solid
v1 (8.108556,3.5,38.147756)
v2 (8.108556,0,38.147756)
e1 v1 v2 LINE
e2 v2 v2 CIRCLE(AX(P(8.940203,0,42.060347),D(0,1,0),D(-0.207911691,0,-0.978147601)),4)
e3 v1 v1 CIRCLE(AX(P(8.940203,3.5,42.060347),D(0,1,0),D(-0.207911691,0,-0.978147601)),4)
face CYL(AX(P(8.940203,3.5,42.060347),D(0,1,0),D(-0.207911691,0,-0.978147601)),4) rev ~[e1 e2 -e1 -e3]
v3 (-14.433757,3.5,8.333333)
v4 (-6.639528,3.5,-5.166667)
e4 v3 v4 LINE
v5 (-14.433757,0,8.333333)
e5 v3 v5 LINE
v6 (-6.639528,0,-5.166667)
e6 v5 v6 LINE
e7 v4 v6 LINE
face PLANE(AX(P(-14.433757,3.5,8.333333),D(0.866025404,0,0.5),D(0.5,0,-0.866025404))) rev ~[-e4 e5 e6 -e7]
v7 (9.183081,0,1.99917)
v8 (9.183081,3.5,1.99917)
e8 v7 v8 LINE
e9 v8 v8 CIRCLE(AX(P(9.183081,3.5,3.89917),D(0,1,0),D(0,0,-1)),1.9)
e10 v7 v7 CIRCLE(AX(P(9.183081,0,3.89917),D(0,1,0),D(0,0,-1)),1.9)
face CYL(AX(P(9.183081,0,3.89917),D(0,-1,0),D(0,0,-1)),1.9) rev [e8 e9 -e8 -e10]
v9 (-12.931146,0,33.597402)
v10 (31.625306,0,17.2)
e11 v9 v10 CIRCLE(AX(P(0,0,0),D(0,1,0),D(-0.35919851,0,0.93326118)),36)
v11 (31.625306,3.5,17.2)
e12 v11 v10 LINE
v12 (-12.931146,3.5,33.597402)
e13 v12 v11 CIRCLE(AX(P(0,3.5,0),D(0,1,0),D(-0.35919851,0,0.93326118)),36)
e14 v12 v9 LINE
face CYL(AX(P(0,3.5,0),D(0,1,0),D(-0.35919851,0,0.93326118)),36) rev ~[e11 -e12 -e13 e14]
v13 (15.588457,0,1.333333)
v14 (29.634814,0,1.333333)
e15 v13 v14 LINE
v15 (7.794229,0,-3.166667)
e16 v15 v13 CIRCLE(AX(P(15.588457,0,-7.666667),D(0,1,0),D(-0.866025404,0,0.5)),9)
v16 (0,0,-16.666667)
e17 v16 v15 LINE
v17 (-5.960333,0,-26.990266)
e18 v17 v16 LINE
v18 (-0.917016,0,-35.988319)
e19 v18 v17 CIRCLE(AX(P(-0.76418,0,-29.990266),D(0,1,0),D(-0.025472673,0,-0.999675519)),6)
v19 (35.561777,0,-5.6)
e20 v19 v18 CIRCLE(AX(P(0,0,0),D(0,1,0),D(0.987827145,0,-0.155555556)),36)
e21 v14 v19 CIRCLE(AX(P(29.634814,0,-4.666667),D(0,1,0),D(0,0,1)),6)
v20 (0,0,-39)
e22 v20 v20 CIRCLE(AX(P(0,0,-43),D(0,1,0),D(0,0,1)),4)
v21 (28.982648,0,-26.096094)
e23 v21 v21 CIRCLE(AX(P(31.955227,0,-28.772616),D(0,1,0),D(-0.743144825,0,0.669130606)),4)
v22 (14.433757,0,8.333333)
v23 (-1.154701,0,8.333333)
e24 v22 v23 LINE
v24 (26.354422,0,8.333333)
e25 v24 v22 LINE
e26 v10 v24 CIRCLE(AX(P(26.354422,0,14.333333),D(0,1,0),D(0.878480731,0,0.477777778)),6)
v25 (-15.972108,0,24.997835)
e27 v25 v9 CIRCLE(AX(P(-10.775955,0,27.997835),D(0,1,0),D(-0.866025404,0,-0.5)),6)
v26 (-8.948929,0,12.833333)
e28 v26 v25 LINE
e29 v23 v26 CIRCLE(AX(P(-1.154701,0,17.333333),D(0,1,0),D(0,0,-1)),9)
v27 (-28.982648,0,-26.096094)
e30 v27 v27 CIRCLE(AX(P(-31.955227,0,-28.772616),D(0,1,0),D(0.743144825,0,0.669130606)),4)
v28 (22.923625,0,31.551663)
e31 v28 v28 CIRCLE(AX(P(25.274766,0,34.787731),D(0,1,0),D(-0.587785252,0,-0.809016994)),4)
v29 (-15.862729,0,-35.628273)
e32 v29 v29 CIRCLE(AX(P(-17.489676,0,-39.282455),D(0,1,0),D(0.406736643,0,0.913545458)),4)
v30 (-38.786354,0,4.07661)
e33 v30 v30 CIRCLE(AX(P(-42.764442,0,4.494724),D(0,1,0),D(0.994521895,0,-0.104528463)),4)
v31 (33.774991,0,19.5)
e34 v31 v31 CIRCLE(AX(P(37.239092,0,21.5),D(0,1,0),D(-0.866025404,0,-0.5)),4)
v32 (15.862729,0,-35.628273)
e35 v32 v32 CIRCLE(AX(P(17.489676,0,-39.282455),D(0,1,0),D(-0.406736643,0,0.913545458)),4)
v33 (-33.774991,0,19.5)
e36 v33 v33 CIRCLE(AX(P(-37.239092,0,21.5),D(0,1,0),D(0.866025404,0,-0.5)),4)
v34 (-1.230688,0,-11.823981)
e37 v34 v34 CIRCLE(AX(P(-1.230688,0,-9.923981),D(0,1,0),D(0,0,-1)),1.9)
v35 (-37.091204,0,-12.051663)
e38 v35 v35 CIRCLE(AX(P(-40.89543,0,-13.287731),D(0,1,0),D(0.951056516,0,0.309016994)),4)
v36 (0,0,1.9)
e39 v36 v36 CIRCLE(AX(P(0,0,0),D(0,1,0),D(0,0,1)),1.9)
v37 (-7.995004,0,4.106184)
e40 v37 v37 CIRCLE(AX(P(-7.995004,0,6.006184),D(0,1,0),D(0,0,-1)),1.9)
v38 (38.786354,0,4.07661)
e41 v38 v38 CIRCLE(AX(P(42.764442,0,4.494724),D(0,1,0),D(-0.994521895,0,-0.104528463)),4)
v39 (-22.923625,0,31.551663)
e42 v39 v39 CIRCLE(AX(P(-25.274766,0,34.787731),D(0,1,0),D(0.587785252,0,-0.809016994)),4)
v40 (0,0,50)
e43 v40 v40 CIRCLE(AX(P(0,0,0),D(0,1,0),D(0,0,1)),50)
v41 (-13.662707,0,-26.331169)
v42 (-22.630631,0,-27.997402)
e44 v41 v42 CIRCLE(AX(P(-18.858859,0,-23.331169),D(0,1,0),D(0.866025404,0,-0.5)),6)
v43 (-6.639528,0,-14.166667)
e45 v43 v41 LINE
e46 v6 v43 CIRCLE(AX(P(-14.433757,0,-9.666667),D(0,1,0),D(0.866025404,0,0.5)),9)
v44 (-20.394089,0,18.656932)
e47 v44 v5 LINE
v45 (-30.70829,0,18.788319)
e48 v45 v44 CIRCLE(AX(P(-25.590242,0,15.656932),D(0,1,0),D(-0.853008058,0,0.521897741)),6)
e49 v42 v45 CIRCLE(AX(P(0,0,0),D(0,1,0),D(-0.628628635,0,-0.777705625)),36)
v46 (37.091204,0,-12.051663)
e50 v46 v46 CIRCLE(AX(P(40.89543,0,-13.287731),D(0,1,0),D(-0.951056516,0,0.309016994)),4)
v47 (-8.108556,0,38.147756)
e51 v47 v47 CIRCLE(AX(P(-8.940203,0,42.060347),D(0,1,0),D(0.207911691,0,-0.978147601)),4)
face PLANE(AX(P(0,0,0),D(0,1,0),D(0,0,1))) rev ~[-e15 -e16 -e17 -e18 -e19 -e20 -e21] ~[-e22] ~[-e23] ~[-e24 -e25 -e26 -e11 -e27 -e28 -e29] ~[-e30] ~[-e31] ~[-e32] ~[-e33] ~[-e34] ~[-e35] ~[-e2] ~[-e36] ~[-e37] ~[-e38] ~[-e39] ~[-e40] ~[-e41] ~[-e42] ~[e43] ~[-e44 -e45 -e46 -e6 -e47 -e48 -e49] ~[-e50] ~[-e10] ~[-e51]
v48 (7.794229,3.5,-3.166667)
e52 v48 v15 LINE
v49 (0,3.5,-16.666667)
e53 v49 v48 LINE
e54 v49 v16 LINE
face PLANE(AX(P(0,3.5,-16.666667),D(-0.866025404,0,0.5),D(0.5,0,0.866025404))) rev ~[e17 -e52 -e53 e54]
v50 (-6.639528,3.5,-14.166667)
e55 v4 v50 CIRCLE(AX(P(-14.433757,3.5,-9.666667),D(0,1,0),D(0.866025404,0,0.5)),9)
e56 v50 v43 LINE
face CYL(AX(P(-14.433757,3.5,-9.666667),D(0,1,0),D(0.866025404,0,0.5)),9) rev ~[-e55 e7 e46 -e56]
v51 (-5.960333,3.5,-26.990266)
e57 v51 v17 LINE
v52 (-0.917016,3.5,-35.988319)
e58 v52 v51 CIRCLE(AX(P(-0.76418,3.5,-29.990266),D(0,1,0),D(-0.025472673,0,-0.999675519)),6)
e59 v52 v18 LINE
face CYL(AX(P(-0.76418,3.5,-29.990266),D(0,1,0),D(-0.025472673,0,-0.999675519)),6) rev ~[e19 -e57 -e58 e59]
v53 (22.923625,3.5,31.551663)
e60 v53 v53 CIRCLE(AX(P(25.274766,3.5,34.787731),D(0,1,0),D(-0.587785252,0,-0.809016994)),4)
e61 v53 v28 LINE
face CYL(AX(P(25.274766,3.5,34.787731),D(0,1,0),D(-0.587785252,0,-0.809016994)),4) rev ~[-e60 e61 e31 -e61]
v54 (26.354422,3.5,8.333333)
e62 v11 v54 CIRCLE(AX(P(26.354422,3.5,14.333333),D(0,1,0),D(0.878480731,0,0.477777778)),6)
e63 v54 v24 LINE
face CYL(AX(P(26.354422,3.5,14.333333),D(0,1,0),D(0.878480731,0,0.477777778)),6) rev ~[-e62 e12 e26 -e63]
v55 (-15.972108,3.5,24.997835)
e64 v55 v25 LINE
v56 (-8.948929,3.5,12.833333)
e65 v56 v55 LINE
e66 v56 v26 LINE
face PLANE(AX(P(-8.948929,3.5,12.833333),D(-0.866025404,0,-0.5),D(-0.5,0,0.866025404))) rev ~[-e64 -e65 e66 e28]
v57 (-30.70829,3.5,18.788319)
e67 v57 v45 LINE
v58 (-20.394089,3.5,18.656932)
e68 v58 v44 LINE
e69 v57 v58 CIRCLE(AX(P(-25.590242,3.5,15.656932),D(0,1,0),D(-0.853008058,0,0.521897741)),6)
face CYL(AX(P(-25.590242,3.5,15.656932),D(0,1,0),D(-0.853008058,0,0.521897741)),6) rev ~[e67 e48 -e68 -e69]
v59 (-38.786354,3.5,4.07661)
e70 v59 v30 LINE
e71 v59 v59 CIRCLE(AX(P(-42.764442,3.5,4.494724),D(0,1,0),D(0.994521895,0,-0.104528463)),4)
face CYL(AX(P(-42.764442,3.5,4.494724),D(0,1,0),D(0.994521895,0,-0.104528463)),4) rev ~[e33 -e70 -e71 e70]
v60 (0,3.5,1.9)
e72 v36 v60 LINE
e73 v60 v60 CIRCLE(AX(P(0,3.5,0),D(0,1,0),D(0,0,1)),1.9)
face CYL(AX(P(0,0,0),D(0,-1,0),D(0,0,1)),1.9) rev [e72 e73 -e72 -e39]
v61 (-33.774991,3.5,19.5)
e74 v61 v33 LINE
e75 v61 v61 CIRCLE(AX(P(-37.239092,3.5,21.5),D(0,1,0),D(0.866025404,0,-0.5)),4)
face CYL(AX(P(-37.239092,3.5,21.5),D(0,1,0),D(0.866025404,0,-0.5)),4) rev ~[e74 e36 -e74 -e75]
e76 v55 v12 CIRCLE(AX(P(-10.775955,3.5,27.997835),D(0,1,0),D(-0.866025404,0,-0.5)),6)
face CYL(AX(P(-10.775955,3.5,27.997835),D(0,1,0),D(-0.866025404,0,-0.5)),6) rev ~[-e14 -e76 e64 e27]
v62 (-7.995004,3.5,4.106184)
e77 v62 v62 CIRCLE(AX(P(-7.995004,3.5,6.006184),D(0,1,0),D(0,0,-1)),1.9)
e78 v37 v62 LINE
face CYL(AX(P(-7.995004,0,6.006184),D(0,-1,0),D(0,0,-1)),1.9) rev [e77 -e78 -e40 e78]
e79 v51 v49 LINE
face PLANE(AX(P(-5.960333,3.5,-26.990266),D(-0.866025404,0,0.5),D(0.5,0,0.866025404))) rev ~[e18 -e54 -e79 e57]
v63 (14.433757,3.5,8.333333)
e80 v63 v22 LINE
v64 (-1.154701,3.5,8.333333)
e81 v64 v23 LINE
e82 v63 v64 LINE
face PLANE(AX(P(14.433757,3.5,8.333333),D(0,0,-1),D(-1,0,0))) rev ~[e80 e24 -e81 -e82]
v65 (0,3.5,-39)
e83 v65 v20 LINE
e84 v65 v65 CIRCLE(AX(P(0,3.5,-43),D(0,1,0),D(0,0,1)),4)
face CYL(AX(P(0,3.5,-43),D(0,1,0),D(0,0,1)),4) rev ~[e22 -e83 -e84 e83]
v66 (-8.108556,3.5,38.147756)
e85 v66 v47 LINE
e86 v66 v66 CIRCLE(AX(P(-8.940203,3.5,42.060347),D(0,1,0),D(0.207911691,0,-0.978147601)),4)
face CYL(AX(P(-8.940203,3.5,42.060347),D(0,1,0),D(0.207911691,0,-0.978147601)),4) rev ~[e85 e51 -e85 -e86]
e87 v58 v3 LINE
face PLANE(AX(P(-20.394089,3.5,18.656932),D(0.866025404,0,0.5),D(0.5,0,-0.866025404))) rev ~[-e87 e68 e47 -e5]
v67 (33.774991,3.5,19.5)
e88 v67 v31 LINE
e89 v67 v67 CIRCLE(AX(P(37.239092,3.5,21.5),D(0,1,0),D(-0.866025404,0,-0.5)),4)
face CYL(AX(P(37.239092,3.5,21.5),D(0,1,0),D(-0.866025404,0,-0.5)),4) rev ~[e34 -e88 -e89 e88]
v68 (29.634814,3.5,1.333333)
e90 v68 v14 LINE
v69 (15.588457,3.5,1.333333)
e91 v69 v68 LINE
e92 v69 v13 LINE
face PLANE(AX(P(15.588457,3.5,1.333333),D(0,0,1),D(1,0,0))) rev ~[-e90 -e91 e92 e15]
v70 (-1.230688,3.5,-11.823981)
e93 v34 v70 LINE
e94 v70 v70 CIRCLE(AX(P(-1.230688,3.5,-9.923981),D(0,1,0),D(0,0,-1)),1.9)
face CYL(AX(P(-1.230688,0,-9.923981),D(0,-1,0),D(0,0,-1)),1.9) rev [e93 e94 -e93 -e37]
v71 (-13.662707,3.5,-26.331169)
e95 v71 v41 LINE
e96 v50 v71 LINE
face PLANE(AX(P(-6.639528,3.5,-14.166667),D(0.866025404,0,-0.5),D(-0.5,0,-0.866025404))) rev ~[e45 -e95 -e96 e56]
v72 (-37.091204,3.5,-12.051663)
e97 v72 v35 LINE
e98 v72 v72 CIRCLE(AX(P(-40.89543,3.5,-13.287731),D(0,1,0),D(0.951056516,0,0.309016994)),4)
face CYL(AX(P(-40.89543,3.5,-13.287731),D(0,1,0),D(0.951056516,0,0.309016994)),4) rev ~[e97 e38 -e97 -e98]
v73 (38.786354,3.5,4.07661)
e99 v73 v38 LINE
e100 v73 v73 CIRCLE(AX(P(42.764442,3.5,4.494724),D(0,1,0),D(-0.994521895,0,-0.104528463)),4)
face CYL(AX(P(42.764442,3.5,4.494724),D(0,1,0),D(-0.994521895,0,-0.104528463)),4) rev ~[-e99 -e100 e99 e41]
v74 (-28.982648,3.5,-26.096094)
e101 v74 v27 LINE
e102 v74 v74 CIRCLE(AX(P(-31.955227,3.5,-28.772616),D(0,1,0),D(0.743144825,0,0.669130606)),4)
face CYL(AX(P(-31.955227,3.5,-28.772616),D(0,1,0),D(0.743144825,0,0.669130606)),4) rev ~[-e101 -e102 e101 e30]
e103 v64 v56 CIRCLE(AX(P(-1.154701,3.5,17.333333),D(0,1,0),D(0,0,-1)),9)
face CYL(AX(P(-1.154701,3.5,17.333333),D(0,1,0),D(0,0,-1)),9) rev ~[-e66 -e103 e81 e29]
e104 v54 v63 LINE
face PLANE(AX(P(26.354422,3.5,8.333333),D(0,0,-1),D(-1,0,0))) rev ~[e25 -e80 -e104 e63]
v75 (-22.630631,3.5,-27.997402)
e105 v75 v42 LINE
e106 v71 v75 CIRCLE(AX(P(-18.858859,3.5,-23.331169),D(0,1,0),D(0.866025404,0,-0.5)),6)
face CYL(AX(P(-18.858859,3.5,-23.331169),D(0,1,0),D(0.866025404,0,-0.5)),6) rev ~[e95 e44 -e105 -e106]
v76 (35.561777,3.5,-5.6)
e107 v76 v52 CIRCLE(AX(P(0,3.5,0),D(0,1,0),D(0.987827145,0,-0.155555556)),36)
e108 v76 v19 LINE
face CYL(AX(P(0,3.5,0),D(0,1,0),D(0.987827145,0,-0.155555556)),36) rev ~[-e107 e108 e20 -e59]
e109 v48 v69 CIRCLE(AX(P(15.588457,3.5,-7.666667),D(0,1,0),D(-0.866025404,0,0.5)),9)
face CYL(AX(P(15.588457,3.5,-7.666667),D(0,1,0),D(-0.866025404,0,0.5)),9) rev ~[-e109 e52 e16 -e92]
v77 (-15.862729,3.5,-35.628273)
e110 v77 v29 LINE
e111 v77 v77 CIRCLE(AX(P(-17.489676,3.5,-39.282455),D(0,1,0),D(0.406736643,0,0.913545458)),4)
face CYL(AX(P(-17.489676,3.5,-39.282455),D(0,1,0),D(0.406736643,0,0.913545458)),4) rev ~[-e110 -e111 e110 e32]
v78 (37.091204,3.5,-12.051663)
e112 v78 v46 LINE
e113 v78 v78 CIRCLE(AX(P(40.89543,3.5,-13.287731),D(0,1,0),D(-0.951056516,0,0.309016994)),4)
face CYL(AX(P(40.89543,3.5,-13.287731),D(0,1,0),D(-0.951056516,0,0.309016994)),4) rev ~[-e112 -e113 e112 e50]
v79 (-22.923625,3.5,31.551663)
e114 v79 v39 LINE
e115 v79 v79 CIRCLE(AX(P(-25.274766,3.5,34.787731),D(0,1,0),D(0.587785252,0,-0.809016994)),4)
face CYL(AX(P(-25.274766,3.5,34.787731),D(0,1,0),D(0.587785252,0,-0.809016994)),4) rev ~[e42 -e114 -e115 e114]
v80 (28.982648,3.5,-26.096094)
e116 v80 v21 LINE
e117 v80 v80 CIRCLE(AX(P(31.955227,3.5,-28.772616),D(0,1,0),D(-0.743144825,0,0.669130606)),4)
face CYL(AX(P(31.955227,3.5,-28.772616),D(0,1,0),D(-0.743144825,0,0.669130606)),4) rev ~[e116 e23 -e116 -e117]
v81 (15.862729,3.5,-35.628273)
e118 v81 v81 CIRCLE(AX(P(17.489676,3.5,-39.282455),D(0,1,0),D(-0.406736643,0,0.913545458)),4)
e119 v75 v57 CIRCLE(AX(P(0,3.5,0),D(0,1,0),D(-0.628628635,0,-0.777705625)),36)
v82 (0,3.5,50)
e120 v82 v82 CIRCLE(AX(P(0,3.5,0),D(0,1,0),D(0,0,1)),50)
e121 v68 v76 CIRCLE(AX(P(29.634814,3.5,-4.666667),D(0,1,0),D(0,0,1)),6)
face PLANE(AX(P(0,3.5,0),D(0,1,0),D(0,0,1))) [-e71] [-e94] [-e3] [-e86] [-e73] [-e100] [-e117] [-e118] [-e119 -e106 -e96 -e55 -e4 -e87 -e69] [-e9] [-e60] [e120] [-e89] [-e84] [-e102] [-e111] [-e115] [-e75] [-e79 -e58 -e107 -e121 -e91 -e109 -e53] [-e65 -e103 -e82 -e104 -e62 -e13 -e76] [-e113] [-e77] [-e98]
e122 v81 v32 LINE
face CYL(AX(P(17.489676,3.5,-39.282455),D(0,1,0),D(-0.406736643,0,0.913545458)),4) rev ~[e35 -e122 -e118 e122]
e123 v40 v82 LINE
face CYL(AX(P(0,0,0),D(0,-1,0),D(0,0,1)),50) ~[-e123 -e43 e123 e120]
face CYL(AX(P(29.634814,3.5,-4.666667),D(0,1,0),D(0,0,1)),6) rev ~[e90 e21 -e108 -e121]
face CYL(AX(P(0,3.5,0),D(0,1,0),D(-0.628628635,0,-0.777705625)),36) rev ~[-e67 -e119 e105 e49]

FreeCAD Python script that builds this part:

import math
import FreeCAD as App
import Part
import Sketcher
Q = App.Units.Quantity

doc = App.newDocument("Part")
body = doc.addObject("PartDesign::Body", "Body")

# Sketch on XZ plane
sketch1 = body.newObject("Sketcher::SketchObject", "Sketch")
sketch1.AttachmentSupport = (doc.getObject("XZ_Plane"), [""])
sketch1.MapMode = "FlatFace"
sketch1.addGeometry(Part.Circle(App.Vector(0, 0, 0), App.Vector(0, 0, 1), 50), False)
sketch1.addGeometry(Part.Circle(App.Vector(0, 0, 0), App.Vector(0, 0, 1), 1.9), False)
sketch1.addConstraint(Sketcher.Constraint("Coincident", 0, 3, -1, 1))
sketch1.addConstraint(Sketcher.Constraint("Coincident", 1, 3, -1, 1))
sketch1.addConstraint(Sketcher.Constraint("Diameter", 0, 100.0))
sketch1.addConstraint(Sketcher.Constraint("Diameter", 1, 3.8))
pad1 = body.newObject("PartDesign::Pad", "Pad")
pad1.Profile = sketch1
pad1.Length = 3.5
pad1.Reversed = True

# Sketch on XZ plane
sketch2 = body.newObject("Sketcher::SketchObject", "Sketch001")
sketch2.AttachmentSupport = (doc.getObject("XZ_Plane"), [""])
sketch2.MapMode = "FlatFace"
sketch2.AttachmentOffset = App.Placement(App.Vector(0, 0, -3.5), App.Rotation())
sketch2.addGeometry(Part.Circle(App.Vector(0, -43, 0), App.Vector(0, 0, 1), 4), False)
sketch2.addConstraint(Sketcher.Constraint("PointOnObject", 0, 3, -2))
sketch2.addConstraint(Sketcher.Constraint("Diameter", 0, 8.0))
sketch2.addConstraint(Sketcher.Constraint("DistanceY", 0, 3, -1, 1, 43.0))
pocket1 = body.newObject("PartDesign::Pocket", "Pocket")
pocket1.Profile = sketch2
pocket1.Length = 3.5
pocket1.Reversed = True
doc.recompute()

polarpattern = body.newObject("PartDesign::PolarPattern", "PolarPattern")
polarpattern.Originals = [pocket1]
polarpattern.Axis = (doc.getObject("Y_Axis"), [""])
polarpattern.Angle = 360
polarpattern.Occurrences = 15
body.Tip = polarpattern

# Sketch on XZ plane
sketch3 = body.newObject("Sketcher::SketchObject", "Sketch002")
sketch3.AttachmentSupport = (doc.getObject("XZ_Plane"), [""])
sketch3.MapMode = "FlatFace"
sketch3.AttachmentOffset = App.Placement(App.Vector(0, 0, -3.5), App.Rotation())
sketch3.addGeometry(Part.ArcOfCircle(Part.Circle(App.Vector(16, -8, 0), App.Vector(0, 0, 1), 9), math.radians(90), math.radians(150)), False)
sketch3.addGeometry(Part.LineSegment(App.Vector(16, 1, 0), App.Vector(30, 1, 0)), False)
sketch3.addGeometry(Part.ArcOfCircle(Part.Circle(App.Vector(30, -5, 0), App.Vector(0, 0, 1), 6), math.radians(-9), math.radians(90)), False)
sketch3.addGeometry(Part.ArcOfCircle(Part.Circle(App.Vector(0, 0, 0), App.Vector(0, 0, 1), 36), math.radians(-91), math.radians(-9)), False)
sketch3.addGeometry(Part.ArcOfCircle(Part.Circle(App.Vector(-1, -30, 0), App.Vector(0, 0, 1), 6), math.radians(150), math.radians(269)), False)
sketch3.addGeometry(Part.LineSegment(App.Vector(-6, -27, 0), App.Vector(0, -17, 0)), False)
sketch3.addGeometry(Part.LineSegment(App.Vector(0, -17, 0), App.Vector(8, -3, 0)), False)
sketch3.addConstraint(Sketcher.Constraint("Tangent", 0, 1, 1, 1))
sketch3.addConstraint(Sketcher.Constraint("Tangent", 1, 2, 2, 2))
sketch3.addConstraint(Sketcher.Constraint("Tangent", 2, 1, 3, 2))
sketch3.addConstraint(Sketcher.Constraint("Tangent", 3, 1, 4, 2))
sketch3.addConstraint(Sketcher.Constraint("Tangent", 4, 1, 5, 1))
sketch3.addConstraint(Sketcher.Constraint("Coincident", 5, 2, 6, 1))
sketch3.addConstraint(Sketcher.Constraint("Tangent", 6, 2, 0, 2))
sketch3.addConstraint(Sketcher.Constraint("Horizontal", 1))
sketch3.addConstraint(Sketcher.Constraint("Coincident", 3, 3, -1, 1))
sketch3.addConstraint(Sketcher.Constraint("Equal", 2, 4))
sketch3.addConstraint(Sketcher.Constraint("PointOnObject", 5, 2, -2))
sketch3.addConstraint(Sketcher.Constraint("Parallel", 5, 6))
sketch3.addConstraint(Sketcher.Constraint("Radius", 0, 9.0))
sketch3.addConstraint(Sketcher.Constraint("Radius", 2, 6.0))
sketch3.addConstraint(Sketcher.Constraint("Radius", 3, 36.0))
sketch3.addConstraint(Sketcher.Constraint("Angle", 5, Q("60 deg")))
sketch3.addConstraint(Sketcher.Constraint("DistanceY", 5, 2, 0, 3, 9.0))
sketch3.addConstraint(Sketcher.Constraint("DistanceY", 2, 1, -1, 1, 5.6))
pocket2 = body.newObject("PartDesign::Pocket", "Pocket001")
pocket2.Profile = sketch3
pocket2.Length = 10
pocket2.Reversed = True
doc.recompute()

polarpattern2 = body.newObject("PartDesign::PolarPattern", "PolarPattern001")
polarpattern2.Originals = [pocket2]
polarpattern2.Axis = (doc.getObject("Y_Axis"), [""])
polarpattern2.Angle = 360
polarpattern2.Occurrences = 3
body.Tip = polarpattern2

# Sketch on XZ plane
sketch4 = body.newObject("Sketcher::SketchObject", "Sketch003")
sketch4.AttachmentSupport = (doc.getObject("XZ_Plane"), [""])
sketch4.MapMode = "FlatFace"
sketch4.addGeometry(Part.Circle(App.Vector(-1.2, -9.9, 0), App.Vector(0, 0, 1), 1.9), False)
sketch4.addGeometry(Part.Circle(App.Vector(9.2, 3.9, 0), App.Vector(0, 0, 1), 1.9), False)
sketch4.addGeometry(Part.Circle(App.Vector(-8, 6, 0), App.Vector(0, 0, 1), 1.9), False)
sketch4.addConstraint(Sketcher.Constraint("Equal", 0, 1))
sketch4.addConstraint(Sketcher.Constraint("Equal", 1, 2))
sketch4.addConstraint(Sketcher.Constraint("Diameter", 0, 3.8))
sketch4.addConstraint(Sketcher.Constraint("DistanceX", 0, 3, -1, 1, 1.230688))
sketch4.addConstraint(Sketcher.Constraint("DistanceY", 0, 3, -1, 1, 9.923981))
sketch4.addConstraint(Sketcher.Constraint("DistanceX", -1, 1, 1, 3, 9.183081))
sketch4.addConstraint(Sketcher.Constraint("DistanceY", -1, 1, 1, 3, 3.89917))
sketch4.addConstraint(Sketcher.Constraint("DistanceX", 2, 3, -1, 1, 7.995004))
sketch4.addConstraint(Sketcher.Constraint("DistanceY", -1, 1, 2, 3, 6.006184))
pocket3 = body.newObject("PartDesign::Pocket", "Pocket002")
pocket3.Profile = sketch4
pocket3.Length = 3.5

doc.recompute()
